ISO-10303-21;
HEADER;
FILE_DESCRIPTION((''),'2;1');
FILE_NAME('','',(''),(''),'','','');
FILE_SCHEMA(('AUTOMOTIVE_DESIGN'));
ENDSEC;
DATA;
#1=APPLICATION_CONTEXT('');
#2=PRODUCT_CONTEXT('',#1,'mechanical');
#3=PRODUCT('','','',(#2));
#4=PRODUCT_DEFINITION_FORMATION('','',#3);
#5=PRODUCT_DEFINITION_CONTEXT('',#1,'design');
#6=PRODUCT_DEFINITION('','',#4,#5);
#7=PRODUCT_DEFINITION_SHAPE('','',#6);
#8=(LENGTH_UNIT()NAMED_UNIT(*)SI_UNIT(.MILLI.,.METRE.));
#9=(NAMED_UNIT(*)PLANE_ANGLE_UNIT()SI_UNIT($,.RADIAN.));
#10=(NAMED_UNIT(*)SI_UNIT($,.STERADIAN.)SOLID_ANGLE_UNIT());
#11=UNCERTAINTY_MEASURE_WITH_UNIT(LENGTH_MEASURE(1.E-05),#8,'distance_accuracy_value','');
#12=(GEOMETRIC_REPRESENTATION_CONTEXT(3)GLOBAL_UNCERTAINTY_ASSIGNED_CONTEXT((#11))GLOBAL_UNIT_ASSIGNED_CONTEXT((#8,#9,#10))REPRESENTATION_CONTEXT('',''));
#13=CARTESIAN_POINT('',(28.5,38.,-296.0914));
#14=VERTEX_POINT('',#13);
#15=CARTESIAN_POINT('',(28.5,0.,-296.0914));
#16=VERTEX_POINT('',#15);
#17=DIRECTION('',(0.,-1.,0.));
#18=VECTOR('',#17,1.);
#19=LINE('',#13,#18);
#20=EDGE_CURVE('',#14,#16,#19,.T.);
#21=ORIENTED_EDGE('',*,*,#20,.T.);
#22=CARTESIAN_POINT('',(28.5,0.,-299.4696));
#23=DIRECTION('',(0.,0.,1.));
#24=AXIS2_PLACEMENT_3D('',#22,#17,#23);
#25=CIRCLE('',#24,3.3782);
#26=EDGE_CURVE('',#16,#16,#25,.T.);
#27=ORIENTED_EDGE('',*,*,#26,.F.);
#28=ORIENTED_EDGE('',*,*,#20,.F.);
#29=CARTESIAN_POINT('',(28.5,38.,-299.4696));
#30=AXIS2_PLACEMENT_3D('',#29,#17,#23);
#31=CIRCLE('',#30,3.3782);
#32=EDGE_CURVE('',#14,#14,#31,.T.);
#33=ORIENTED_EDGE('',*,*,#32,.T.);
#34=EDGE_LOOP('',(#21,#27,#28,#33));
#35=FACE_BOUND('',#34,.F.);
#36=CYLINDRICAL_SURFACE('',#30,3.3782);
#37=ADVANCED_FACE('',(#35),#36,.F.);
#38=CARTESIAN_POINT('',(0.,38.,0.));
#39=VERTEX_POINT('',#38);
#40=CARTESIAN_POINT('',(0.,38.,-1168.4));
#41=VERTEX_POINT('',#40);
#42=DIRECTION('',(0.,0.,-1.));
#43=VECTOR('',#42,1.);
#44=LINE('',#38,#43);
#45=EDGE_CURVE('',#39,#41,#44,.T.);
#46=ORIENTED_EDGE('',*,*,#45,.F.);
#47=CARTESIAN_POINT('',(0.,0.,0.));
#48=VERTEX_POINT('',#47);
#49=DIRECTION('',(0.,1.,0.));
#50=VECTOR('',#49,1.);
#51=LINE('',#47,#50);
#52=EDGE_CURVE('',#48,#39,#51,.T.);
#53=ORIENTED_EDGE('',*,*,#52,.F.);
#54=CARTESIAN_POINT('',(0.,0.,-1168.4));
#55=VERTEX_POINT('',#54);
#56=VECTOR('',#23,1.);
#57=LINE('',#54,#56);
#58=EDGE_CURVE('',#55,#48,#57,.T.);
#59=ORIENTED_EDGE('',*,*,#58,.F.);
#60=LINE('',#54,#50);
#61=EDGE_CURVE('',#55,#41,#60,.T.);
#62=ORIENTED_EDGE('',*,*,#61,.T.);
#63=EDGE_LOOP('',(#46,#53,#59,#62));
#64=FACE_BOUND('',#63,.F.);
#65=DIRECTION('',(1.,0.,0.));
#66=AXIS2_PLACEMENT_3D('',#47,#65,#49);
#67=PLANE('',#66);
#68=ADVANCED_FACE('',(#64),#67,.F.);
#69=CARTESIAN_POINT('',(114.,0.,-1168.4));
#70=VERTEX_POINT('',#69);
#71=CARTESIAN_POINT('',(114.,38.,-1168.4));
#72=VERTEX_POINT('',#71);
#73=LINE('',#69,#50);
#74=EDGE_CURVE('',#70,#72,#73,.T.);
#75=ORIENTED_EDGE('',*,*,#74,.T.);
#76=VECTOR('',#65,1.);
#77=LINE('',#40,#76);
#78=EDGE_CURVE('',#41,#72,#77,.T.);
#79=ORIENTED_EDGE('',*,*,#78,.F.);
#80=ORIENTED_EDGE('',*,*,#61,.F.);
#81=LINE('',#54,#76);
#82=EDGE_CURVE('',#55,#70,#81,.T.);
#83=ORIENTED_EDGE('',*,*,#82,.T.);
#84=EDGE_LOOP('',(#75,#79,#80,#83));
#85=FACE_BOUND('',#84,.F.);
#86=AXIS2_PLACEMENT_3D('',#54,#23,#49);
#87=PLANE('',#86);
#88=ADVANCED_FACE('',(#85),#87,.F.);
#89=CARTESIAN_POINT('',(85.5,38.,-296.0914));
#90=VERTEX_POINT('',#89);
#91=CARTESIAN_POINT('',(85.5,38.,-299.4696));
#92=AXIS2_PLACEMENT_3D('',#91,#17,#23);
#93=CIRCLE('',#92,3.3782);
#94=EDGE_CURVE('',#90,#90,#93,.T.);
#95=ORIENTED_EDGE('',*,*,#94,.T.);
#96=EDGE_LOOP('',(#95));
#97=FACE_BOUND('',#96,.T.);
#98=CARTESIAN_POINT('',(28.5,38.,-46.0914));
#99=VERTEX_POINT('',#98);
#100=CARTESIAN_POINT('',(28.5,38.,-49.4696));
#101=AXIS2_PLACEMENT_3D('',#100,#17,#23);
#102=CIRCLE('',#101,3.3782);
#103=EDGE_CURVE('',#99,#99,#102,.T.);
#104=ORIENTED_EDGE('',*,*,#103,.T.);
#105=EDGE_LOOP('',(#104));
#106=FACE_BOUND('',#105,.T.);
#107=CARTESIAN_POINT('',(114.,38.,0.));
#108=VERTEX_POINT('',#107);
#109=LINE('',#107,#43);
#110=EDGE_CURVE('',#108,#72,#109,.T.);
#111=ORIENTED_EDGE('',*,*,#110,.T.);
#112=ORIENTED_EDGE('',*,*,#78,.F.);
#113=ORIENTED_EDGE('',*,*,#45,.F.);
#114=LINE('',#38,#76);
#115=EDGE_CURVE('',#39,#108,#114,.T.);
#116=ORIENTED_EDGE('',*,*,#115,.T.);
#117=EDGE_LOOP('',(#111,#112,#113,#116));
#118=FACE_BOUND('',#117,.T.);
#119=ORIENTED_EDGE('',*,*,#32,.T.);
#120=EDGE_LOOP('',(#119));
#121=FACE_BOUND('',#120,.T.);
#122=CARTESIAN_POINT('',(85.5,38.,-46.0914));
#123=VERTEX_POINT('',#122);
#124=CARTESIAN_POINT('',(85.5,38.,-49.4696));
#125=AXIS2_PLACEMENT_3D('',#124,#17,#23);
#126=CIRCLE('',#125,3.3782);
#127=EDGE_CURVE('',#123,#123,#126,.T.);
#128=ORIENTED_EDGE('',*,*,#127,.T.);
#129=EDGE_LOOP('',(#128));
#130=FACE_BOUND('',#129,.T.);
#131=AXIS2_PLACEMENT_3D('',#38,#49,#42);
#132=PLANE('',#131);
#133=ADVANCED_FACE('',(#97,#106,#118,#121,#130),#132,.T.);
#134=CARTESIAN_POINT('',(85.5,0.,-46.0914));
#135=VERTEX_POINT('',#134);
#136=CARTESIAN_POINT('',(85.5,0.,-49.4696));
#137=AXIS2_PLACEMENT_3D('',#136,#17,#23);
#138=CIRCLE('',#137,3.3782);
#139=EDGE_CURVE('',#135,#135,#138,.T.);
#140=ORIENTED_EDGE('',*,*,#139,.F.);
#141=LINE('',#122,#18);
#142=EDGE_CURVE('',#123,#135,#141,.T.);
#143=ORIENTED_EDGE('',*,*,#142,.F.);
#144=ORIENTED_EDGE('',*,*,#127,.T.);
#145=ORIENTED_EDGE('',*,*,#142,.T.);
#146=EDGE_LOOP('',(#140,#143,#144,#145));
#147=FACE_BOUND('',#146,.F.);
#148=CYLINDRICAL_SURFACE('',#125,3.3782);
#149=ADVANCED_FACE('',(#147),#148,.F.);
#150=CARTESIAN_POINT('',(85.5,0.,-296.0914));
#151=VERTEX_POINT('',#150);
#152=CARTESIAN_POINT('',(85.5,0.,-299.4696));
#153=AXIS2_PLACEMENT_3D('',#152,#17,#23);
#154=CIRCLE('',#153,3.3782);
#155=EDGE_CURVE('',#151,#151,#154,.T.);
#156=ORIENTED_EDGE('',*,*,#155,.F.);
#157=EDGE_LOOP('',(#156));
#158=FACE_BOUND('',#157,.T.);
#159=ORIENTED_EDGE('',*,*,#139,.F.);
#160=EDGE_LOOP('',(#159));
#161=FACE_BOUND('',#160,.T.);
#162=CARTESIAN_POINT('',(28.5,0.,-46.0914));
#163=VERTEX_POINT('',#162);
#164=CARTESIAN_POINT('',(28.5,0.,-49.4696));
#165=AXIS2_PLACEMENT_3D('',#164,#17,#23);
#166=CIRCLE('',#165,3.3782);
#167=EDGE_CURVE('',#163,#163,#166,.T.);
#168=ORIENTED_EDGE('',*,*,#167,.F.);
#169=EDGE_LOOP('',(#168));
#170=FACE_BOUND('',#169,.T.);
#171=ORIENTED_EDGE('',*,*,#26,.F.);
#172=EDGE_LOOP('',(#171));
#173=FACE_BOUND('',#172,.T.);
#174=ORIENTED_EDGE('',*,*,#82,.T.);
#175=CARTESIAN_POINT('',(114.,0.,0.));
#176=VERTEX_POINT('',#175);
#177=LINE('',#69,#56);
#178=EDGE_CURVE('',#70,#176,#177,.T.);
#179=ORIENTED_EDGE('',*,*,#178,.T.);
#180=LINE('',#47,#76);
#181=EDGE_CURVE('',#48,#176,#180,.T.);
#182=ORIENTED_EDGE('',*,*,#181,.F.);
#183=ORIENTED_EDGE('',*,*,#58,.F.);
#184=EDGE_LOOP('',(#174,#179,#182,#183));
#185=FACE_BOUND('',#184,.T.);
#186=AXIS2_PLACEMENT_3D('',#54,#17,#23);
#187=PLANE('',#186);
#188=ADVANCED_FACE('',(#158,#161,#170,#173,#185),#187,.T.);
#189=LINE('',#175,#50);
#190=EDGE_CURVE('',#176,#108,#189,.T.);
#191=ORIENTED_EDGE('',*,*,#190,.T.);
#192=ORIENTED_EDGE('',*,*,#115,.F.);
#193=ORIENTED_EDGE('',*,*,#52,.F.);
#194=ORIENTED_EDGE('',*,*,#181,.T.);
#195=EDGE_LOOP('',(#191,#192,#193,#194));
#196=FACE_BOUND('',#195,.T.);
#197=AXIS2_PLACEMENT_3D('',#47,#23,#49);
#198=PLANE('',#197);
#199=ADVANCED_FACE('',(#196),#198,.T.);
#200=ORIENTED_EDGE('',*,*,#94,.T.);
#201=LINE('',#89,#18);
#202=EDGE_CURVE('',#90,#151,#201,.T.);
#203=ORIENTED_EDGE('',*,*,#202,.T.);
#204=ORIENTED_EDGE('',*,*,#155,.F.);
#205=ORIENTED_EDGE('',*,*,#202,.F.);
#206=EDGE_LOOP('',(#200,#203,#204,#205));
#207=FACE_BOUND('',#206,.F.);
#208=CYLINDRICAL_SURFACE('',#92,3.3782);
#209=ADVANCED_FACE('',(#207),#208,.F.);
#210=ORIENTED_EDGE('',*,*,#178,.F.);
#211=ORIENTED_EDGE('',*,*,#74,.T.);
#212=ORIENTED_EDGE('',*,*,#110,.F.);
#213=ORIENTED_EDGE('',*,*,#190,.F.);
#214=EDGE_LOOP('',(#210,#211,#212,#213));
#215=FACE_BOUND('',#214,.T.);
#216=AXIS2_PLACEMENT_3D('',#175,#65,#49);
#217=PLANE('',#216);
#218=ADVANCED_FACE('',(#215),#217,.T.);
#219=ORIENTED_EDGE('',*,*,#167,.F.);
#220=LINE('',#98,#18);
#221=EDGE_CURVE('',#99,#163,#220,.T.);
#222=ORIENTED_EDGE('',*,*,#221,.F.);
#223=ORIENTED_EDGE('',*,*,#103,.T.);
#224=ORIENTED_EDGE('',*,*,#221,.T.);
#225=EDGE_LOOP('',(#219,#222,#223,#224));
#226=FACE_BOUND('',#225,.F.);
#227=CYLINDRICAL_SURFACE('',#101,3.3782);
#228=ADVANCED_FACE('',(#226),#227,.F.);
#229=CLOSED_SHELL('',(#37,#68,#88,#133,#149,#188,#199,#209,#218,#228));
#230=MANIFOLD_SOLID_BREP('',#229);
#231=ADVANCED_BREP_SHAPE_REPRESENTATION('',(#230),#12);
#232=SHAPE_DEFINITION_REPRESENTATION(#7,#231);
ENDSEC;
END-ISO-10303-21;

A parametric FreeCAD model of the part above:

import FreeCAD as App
import Part
import Sketcher
from FreeCAD import Vector
Q = App.Units.Quantity

doc = App.newDocument("Part")
body = doc.addObject("PartDesign::Body", "Body")

sketch1 = body.newObject("Sketcher::SketchObject", "Sketch")
sketch1.AttachmentSupport = (doc.getObject("YZ_Plane"), [""])
sketch1.MapMode = "FlatFace"
sketch1.addGeometry(Part.LineSegment(Vector(38, 0, 0), Vector(0, 0, 0)), False)
sketch1.addGeometry(Part.LineSegment(Vector(0, 0, 0), Vector(0, -1168, 0)), False)
sketch1.addGeometry(Part.LineSegment(Vector(0, -1168, 0), Vector(38, -1168, 0)), False)
sketch1.addGeometry(Part.LineSegment(Vector(38, -1168, 0), Vector(38, 0, 0)), False)
sketch1.addConstraint(Sketcher.Constraint("Coincident", 0, 2, 1, 1))
sketch1.addConstraint(Sketcher.Constraint("Coincident", 1, 2, 2, 1))
sketch1.addConstraint(Sketcher.Constraint("Coincident", 2, 2, 3, 1))
sketch1.addConstraint(Sketcher.Constraint("Coincident", 3, 2, 0, 1))
sketch1.addConstraint(Sketcher.Constraint("Horizontal", 0))
sketch1.addConstraint(Sketcher.Constraint("Vertical", 1))
sketch1.addConstraint(Sketcher.Constraint("Horizontal", 2))
sketch1.addConstraint(Sketcher.Constraint("Vertical", 3))
sketch1.addConstraint(Sketcher.Constraint("Coincident", 0, 2, -1, 1))
sketch1.addConstraint(Sketcher.Constraint("DistanceY", 1, 2, 1, 1, Q("46 in")))
sketch1.addConstraint(Sketcher.Constraint("DistanceX", 0, 2, 0, 1, Q("38 mm")))
pad1 = body.newObject("PartDesign::Pad", "Pad")
pad1.Profile = sketch1
pad1.Length = Q("4.488189 in")

sketch2 = body.newObject("Sketcher::SketchObject", "Sketch001")
sketch2.AttachmentSupport = (doc.getObject("XZ_Plane"), [""])
sketch2.MapMode = "FlatFace"
sketch2.AttachmentOffset = App.Placement(Vector(0, 0, -38), App.Rotation())
sketch2.addGeometry(Part.Circle(Vector(28.5, -49.5, 0), Vector(0, 0, 1), 3.4), False)
sketch2.addGeometry(Part.Circle(Vector(85.5, -49.5, 0), Vector(0, 0, 1), 3.4), False)
sketch2.addGeometry(Part.Circle(Vector(28.5, -299.5, 0), Vector(0, 0, 1), 3.4), False)
sketch2.addGeometry(Part.Circle(Vector(85.5, -299.5, 0), Vector(0, 0, 1), 3.4), False)
sketch2.addConstraint(Sketcher.Constraint("Equal", 0, 1))
sketch2.addConstraint(Sketcher.Constraint("Equal", 1, 2))
sketch2.addConstraint(Sketcher.Constraint("Equal", 2, 3))
sketch2.addConstraint(Sketcher.Constraint("Horizontal", 0, 3, 1, 3))
sketch2.addConstraint(Sketcher.Constraint("Horizontal", 2, 3, 3, 3))
sketch2.addConstraint(Sketcher.Constraint("Vertical", 0, 3, 2, 3))
sketch2.addConstraint(Sketcher.Constraint("Vertical", 1, 3, 3, 3))
sketch2.addConstraint(Sketcher.Constraint("Diameter", 0, Q("0.266 in")))
sketch2.addConstraint(Sketcher.Constraint("DistanceX", 0, 3, 1, 3, Q("2.2441 in")))
sketch2.addConstraint(Sketcher.Constraint("DistanceX", -1, 1, 0, 3, Q("28.5 mm")))
sketch2.addConstraint(Sketcher.Constraint("DistanceY", 0, 3, -1, 1, Q("49.4696 mm")))
sketch2.addConstraint(Sketcher.Constraint("DistanceY", 2, 3, -1, 1, Q("299.4696 mm")))
doc.recompute()
hole = body.newObject("PartDesign::Hole", "Hole")
hole.Profile = sketch2
hole.ThreadType = "None"
hole.Diameter = Q("0.266 in")
hole.DepthType = "ThroughAll"
hole.Reversed = True

doc.recompute()
